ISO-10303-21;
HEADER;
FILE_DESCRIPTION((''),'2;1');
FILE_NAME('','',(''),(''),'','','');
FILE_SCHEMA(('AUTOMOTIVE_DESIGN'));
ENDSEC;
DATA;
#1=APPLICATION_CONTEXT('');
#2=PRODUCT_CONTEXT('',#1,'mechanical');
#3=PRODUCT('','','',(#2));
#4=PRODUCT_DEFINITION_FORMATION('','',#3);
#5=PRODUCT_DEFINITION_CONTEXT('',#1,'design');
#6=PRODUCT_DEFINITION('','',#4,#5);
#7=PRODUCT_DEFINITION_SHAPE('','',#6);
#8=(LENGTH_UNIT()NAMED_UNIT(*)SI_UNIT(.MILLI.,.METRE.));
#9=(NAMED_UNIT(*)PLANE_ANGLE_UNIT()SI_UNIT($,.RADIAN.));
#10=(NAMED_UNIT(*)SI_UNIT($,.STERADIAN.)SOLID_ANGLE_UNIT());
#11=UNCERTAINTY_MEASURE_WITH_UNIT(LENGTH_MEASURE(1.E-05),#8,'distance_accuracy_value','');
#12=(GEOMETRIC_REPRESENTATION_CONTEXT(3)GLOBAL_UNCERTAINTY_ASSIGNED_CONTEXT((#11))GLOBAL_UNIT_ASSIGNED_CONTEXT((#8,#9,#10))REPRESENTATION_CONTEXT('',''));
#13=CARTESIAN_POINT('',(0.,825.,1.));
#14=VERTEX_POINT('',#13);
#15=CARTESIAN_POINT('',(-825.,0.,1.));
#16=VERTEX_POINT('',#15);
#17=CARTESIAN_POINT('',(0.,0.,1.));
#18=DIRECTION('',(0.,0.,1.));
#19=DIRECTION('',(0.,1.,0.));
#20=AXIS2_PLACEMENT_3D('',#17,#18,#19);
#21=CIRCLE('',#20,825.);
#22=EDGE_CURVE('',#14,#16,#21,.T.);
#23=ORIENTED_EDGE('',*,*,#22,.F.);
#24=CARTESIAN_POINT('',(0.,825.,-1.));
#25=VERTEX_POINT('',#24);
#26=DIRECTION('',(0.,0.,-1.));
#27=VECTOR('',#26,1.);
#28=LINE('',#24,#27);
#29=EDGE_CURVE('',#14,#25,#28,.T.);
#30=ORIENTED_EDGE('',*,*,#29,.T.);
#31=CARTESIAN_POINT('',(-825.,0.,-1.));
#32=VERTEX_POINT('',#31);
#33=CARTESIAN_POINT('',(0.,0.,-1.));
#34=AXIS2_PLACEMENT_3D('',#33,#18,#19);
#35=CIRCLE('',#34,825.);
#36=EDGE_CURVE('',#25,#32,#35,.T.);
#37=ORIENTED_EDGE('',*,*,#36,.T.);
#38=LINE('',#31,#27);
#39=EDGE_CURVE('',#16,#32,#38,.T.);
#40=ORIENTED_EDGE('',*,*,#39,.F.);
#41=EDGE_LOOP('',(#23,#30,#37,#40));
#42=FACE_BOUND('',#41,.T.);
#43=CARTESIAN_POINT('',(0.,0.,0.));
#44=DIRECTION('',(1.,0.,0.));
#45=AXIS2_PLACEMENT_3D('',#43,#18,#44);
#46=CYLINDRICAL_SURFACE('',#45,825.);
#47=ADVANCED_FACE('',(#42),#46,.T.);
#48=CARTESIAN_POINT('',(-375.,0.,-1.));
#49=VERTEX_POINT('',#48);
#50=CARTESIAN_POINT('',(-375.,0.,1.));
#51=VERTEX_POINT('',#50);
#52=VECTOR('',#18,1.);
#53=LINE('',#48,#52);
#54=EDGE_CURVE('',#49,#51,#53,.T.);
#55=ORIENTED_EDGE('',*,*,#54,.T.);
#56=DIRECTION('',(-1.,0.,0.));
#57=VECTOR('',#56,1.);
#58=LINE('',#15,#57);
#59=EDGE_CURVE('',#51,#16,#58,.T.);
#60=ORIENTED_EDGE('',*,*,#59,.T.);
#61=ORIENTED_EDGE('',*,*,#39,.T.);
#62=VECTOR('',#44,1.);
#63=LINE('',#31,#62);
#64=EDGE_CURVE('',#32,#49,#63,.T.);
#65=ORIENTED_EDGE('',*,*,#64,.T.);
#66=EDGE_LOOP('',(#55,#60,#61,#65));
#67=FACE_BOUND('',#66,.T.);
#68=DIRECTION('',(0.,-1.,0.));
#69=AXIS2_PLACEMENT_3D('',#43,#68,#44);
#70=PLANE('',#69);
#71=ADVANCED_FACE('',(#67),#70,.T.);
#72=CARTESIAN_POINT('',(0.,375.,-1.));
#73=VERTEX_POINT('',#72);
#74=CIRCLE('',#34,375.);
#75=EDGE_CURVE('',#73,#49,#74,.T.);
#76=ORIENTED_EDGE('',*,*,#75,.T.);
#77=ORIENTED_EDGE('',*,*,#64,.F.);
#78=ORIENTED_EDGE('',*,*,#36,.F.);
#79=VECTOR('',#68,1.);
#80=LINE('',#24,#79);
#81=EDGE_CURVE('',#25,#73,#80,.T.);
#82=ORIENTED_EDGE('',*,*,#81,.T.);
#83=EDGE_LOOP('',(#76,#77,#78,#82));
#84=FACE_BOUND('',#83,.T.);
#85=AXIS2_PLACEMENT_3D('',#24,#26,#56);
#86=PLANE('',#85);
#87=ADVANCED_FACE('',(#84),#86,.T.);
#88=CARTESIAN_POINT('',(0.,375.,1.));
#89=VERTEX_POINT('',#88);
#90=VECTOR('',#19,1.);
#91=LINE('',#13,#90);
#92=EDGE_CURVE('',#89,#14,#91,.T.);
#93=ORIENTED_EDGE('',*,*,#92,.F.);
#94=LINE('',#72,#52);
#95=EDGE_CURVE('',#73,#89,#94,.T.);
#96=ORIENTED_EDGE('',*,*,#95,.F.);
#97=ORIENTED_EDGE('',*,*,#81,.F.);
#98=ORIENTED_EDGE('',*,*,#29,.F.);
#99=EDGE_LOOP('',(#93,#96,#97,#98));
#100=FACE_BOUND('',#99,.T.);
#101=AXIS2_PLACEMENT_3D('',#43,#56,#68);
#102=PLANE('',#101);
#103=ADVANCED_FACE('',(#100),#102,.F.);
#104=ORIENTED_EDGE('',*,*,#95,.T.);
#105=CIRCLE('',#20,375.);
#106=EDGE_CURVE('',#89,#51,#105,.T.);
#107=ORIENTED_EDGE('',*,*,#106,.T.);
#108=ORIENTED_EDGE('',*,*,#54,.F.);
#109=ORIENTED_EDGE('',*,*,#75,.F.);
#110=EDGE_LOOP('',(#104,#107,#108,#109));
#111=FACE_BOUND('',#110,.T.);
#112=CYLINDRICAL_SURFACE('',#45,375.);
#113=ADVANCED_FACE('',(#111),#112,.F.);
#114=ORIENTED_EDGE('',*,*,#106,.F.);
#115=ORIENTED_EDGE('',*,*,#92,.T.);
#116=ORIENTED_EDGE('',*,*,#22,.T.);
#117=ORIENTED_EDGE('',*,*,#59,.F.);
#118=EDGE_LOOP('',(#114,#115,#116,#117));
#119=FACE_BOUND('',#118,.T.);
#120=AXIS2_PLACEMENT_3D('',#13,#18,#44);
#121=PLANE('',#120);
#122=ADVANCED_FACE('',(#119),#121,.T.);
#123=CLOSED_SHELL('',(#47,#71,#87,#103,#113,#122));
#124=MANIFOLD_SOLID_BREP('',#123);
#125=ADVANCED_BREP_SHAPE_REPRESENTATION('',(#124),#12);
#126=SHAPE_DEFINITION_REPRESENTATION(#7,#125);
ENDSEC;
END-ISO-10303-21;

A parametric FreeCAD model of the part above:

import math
import FreeCAD as App
import Part
import Sketcher
from FreeCAD import Vector

doc = App.newDocument("Part")
params = doc.addObject("Spreadsheet::Sheet", "Params")
for row, (alias, value) in enumerate([
    ("sketch1_width", "450 mm"),
    ("sketch1_height", "2 mm"),
    ("sketch2_radius", "600 mm"),
], start=1):
    params.set(f"A{row}", alias)
    params.set(f"B{row}", "=" + value)
    params.setAlias(f"B{row}", alias)

body = doc.addObject("PartDesign::Body", "Body")

sketch1 = body.newObject("Sketcher::SketchObject", "Sketch")
sketch1.AttachmentSupport = (doc.getObject("YZ_Plane"), [""])
sketch1.MapMode = "FlatFace"
sketch1.addGeometry([
    Part.LineSegment(Vector(825, -1, 0), Vector(375, -1, 0)),
    Part.LineSegment(Vector(375, -1, 0), Vector(375, 1, 0)),
    Part.LineSegment(Vector(375, 1, 0), Vector(825, 1, 0)),
    Part.LineSegment(Vector(825, 1, 0), Vector(825, -1, 0)),
], False)
sketch1.addConstraint([
    Sketcher.Constraint("Coincident", 0, 2, 1, 1),
    Sketcher.Constraint("Coincident", 1, 2, 2, 1),
    Sketcher.Constraint("Coincident", 2, 2, 3, 1),
    Sketcher.Constraint("Coincident", 3, 2, 0, 1),
    Sketcher.Constraint("Horizontal", 0),
    Sketcher.Constraint("Vertical", 1),
    Sketcher.Constraint("Horizontal", 2),
    Sketcher.Constraint("Vertical", 3),
    Sketcher.Constraint("DistanceX", 0, 2, 0, 1, 450.0),
    Sketcher.Constraint("DistanceY", 1, 1, 1, 2, 2.0),
    Sketcher.Constraint("DistanceX", -1, 1, 0, 2, 375.0),
    Sketcher.Constraint("DistanceY", 0, 2, -1, 1, 1.0),
])
sketch1.setExpression("Constraints[8]", "Params.sketch1_width")
sketch1.setExpression("Constraints[9]", "Params.sketch1_height")

sketch2 = body.newObject("Sketcher::SketchObject", "Sketch001")
sketch2.AttachmentSupport = (doc.getObject("XY_Plane"), [""])
sketch2.MapMode = "FlatFace"
sketch2.addGeometry(Part.ArcOfCircle(Part.Circle(Vector(0, 0, 0), Vector(0, 0, 1), 600), math.radians(90), math.radians(180)), False)
sketch2.addConstraint([
    Sketcher.Constraint("Coincident", 0, 3, -1, 1),
    Sketcher.Constraint("PointOnObject", 0, 1, -2),
    Sketcher.Constraint("PointOnObject", 0, 2, -1),
    Sketcher.Constraint("Radius", 0, 600.0),
])
sketch2.setExpression("Constraints[3]", "Params.sketch2_radius")
doc.recompute()

additivepipe = body.newObject("PartDesign::AdditivePipe", "AdditivePipe")
additivepipe.Profile = sketch1
additivepipe.Spine = (sketch2, ["Edge1"])

doc.recompute()
